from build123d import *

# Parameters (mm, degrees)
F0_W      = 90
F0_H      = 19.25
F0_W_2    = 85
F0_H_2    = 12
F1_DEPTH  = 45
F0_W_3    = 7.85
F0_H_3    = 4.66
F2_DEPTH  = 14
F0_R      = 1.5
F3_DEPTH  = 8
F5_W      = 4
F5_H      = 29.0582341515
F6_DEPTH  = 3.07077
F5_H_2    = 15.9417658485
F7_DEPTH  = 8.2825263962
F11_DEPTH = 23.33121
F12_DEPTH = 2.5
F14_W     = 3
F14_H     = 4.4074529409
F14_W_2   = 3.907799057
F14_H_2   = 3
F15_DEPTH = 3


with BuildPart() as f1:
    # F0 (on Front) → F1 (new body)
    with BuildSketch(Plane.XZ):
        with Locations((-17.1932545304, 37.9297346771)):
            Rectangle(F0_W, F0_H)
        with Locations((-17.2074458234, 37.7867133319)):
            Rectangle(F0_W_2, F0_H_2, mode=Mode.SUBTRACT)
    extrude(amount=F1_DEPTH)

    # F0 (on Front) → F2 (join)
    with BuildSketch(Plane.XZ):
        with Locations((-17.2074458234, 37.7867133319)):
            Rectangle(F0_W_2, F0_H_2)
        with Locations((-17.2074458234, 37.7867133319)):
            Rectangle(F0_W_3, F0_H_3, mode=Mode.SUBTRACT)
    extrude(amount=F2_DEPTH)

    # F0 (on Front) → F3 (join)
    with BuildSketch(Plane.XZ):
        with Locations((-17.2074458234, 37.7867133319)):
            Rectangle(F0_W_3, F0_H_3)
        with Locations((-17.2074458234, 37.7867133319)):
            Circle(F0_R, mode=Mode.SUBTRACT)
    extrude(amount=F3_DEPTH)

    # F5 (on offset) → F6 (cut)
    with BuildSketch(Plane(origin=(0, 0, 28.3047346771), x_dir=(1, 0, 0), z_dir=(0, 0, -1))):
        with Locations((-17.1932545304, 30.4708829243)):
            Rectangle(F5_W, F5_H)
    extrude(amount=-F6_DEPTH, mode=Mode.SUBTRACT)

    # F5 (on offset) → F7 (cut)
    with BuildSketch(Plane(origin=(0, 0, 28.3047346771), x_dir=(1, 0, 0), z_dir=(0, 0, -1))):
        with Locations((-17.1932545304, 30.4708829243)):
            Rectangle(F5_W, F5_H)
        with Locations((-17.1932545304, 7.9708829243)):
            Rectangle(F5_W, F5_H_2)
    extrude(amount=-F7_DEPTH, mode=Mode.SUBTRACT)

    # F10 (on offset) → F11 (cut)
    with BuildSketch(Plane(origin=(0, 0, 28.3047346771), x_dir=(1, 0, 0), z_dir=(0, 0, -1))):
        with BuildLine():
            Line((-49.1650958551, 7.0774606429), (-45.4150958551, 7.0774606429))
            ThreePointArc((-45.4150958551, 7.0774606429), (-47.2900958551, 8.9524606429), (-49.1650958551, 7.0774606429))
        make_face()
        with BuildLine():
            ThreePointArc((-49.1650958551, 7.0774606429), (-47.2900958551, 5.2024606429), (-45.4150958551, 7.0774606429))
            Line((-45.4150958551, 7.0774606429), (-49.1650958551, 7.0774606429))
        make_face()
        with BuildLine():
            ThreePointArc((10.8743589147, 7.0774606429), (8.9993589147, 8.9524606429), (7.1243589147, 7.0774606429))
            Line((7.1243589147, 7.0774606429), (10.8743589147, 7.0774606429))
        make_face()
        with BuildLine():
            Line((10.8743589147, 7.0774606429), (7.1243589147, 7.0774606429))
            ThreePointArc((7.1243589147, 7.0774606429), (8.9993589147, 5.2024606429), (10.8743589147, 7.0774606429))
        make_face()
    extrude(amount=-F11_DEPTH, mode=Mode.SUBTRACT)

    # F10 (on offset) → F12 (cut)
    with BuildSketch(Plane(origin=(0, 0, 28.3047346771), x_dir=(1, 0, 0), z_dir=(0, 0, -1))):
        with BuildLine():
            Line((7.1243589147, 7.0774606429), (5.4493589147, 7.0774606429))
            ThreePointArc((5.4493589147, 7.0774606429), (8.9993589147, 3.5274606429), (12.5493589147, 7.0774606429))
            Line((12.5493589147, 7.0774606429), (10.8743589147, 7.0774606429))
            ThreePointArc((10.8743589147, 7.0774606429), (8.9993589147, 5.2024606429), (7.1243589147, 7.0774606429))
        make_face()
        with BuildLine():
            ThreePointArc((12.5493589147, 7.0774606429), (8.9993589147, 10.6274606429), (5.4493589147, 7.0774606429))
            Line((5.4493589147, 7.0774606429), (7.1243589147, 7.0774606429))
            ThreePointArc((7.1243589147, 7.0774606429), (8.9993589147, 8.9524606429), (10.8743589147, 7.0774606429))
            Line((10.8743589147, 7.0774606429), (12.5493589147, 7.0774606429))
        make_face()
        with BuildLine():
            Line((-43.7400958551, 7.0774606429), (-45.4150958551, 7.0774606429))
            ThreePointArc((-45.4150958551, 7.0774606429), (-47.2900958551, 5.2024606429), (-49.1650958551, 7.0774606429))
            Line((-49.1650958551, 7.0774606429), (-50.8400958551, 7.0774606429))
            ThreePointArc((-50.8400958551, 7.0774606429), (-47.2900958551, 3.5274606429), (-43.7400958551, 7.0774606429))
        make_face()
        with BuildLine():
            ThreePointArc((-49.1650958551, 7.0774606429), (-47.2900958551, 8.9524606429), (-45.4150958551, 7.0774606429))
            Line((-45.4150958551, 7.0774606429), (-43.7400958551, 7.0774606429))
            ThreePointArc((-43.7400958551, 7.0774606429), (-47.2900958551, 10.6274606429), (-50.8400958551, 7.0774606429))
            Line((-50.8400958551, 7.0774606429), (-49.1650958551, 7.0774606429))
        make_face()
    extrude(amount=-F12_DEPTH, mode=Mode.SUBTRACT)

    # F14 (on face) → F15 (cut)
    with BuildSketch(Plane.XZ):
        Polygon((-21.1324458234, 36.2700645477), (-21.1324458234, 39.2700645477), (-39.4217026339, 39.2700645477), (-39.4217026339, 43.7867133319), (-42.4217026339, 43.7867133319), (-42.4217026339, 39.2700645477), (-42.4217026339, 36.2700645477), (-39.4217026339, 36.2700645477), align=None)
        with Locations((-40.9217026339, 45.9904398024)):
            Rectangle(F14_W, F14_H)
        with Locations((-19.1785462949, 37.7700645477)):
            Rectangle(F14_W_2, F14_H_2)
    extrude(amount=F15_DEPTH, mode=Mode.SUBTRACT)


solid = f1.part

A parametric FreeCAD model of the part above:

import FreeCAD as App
import Part
import Sketcher

V = App.Vector
Q = App.Units.Quantity

doc = App.newDocument("Part")
body = doc.addObject("PartDesign::Body", "Body")

sketch1 = body.newObject("Sketcher::SketchObject", "Sketch")
sketch1.AttachmentSupport = (doc.getObject("XZ_Plane"), [""])
sketch1.MapMode = "FlatFace"
sketch1.addGeometry([
    Part.LineSegment(V(-62, 48, 0), V(-62, 28, 0)),
    Part.LineSegment(V(-62, 28, 0), V(28, 28, 0)),
    Part.LineSegment(V(28, 28, 0), V(28, 48, 0)),
    Part.LineSegment(V(28, 48, 0), V(-62, 48, 0)),
    Part.LineSegment(V(25, 32, 0), V(-60, 32, 0)),
    Part.LineSegment(V(-60, 32, 0), V(-60, 44, 0)),
    Part.LineSegment(V(-60, 44, 0), V(25, 44, 0)),
    Part.LineSegment(V(25, 44, 0), V(25, 32, 0)),
], False)
sketch1.addConstraint([
    Sketcher.Constraint("Coincident", 0, 2, 1, 1),
    Sketcher.Constraint("Coincident", 1, 2, 2, 1),
    Sketcher.Constraint("Coincident", 2, 2, 3, 1),
    Sketcher.Constraint("Coincident", 3, 2, 0, 1),
    Sketcher.Constraint("Coincident", 4, 2, 5, 1),
    Sketcher.Constraint("Coincident", 5, 2, 6, 1),
    Sketcher.Constraint("Coincident", 6, 2, 7, 1),
    Sketcher.Constraint("Coincident", 7, 2, 4, 1),
    Sketcher.Constraint("Vertical", 0),
    Sketcher.Constraint("Horizontal", 1),
    Sketcher.Constraint("Vertical", 2),
    Sketcher.Constraint("Horizontal", 3),
    Sketcher.Constraint("Horizontal", 4),
    Sketcher.Constraint("Vertical", 5),
    Sketcher.Constraint("Horizontal", 6),
    Sketcher.Constraint("Vertical", 7),
    Sketcher.Constraint("DistanceX", 1, 1, 1, 2, Q("90 mm")),
    Sketcher.Constraint("DistanceX", 4, 2, 4, 1, Q("85 mm")),
    Sketcher.Constraint("DistanceY", 5, 1, 5, 2, Q("12 mm")),
    Sketcher.Constraint("DistanceY", 0, 2, 0, 1, Q("19.25 mm")),
    Sketcher.Constraint("DistanceX", 0, 2, 4, 2, Q("2.485809 mm")),
    Sketcher.Constraint("DistanceY", 0, 2, 4, 2, Q("3.481979 mm")),
    Sketcher.Constraint("DistanceX", 0, 2, -1, 1, Q("62.193255 mm")),
    Sketcher.Constraint("DistanceY", -1, 1, 0, 2, Q("28.304735 mm")),
])
pad1 = body.newObject("PartDesign::Pad", "Pad")
pad1.Profile = sketch1
pad1.Length = 45

sketch2 = body.newObject("Sketcher::SketchObject", "Sketch001")
sketch2.AttachmentSupport = (doc.getObject("XZ_Plane"), [""])
sketch2.MapMode = "FlatFace"
sketch2.addGeometry([
    Part.LineSegment(V(-59.7, 43.8, 0), V(-59.7, 31.8, 0)),
    Part.LineSegment(V(-59.7, 31.8, 0), V(25.3, 31.8, 0)),
    Part.LineSegment(V(25.3, 31.8, 0), V(25.3, 43.8, 0)),
    Part.LineSegment(V(25.3, 43.8, 0), V(-59.7, 43.8, 0)),
    Part.LineSegment(V(-13.3, 35.5, 0), V(-21.1, 35.5, 0)),
    Part.LineSegment(V(-21.1, 35.5, 0), V(-21.1, 40.1, 0)),
    Part.LineSegment(V(-21.1, 40.1, 0), V(-13.3, 40.1, 0)),
    Part.LineSegment(V(-13.3, 40.1, 0), V(-13.3, 35.5, 0)),
], False)
sketch2.addConstraint([
    Sketcher.Constraint("Coincident", 0, 2, 1, 1),
    Sketcher.Constraint("Coincident", 1, 2, 2, 1),
    Sketcher.Constraint("Coincident", 2, 2, 3, 1),
    Sketcher.Constraint("Coincident", 3, 2, 0, 1),
    Sketcher.Constraint("Coincident", 4, 2, 5, 1),
    Sketcher.Constraint("Coincident", 5, 2, 6, 1),
    Sketcher.Constraint("Coincident", 6, 2, 7, 1),
    Sketcher.Constraint("Coincident", 7, 2, 4, 1),
    Sketcher.Constraint("Vertical", 0),
    Sketcher.Constraint("Horizontal", 1),
    Sketcher.Constraint("Vertical", 2),
    Sketcher.Constraint("Horizontal", 3),
    Sketcher.Constraint("Horizontal", 4),
    Sketcher.Constraint("Vertical", 5),
    Sketcher.Constraint("Horizontal", 6),
    Sketcher.Constraint("Vertical", 7),
    Sketcher.Constraint("DistanceX", 1, 1, 1, 2, Q("85 mm")),
    Sketcher.Constraint("DistanceY", 0, 2, 0, 1, Q("12 mm")),
    Sketcher.Constraint("DistanceX", 4, 2, 4, 1, Q("7.85 mm")),
    Sketcher.Constraint("DistanceY", 5, 1, 5, 2, Q("4.66 mm")),
    Sketcher.Constraint("DistanceY", 0, 2, 4, 2, Q("3.67 mm")),
    Sketcher.Constraint("DistanceX", 0, 2, 4, 2, Q("38.575 mm")),
    Sketcher.Constraint("DistanceX", 0, 2, -1, 1, Q("59.707446 mm")),
    Sketcher.Constraint("DistanceY", -1, 1, 0, 2, Q("31.786713 mm")),
])
pad2 = body.newObject("PartDesign::Pad", "Pad001")
pad2.Profile = sketch2
pad2.Length = 14

sketch3 = body.newObject("Sketcher::SketchObject", "Sketch002")
sketch3.AttachmentSupport = (doc.getObject("XZ_Plane"), [""])
sketch3.MapMode = "FlatFace"
sketch3.addGeometry([
    Part.LineSegment(V(-21.1, 40.1, 0), V(-21.1, 35.5, 0)),
    Part.LineSegment(V(-21.1, 35.5, 0), V(-13.3, 35.5, 0)),
    Part.LineSegment(V(-13.3, 35.5, 0), V(-13.3, 40.1, 0)),
    Part.LineSegment(V(-13.3, 40.1, 0), V(-21.1, 40.1, 0)),
    Part.Circle(V(-17.2, 37.8, 0), V(0, 0, 1), 1.5),
], False)
sketch3.addConstraint([
    Sketcher.Constraint("Coincident", 0, 2, 1, 1),
    Sketcher.Constraint("Coincident", 1, 2, 2, 1),
    Sketcher.Constraint("Coincident", 2, 2, 3, 1),
    Sketcher.Constraint("Coincident", 3, 2, 0, 1),
    Sketcher.Constraint("Vertical", 0),
    Sketcher.Constraint("Horizontal", 1),
    Sketcher.Constraint("Vertical", 2),
    Sketcher.Constraint("Horizontal", 3),
    Sketcher.Constraint("Diameter", 4, Q("3 mm")),
    Sketcher.Constraint("DistanceX", 1, 1, 1, 2, Q("7.85 mm")),
    Sketcher.Constraint("DistanceY", 0, 2, 0, 1, Q("4.66 mm")),
    Sketcher.Constraint("DistanceY", 0, 2, 4, 3, Q("2.33 mm")),
    Sketcher.Constraint("DistanceX", 0, 2, 4, 3, Q("3.925 mm")),
    Sketcher.Constraint("DistanceX", 4, 3, -1, 1, Q("17.207446 mm")),
    Sketcher.Constraint("DistanceY", -1, 1, 4, 3, Q("37.786713 mm")),
])
pad3 = body.newObject("PartDesign::Pad", "Pad002")
pad3.Profile = sketch3
pad3.Length = 8

sketch4 = body.newObject("Sketcher::SketchObject", "Sketch003")
sketch4.AttachmentSupport = (doc.getObject("XY_Plane"), [""])
sketch4.MapMode = "FlatFace"
sketch4.AttachmentOffset = App.Placement(V(0, 0, 28.304735), App.Rotation())
sketch4.addGeometry([
    Part.LineSegment(V(-19.2, -45, 0), V(-19.2, -15.9, 0)),
    Part.LineSegment(V(-19.2, -15.9, 0), V(-15.2, -15.9, 0)),
    Part.LineSegment(V(-15.2, -15.9, 0), V(-15.2, -45, 0)),
    Part.LineSegment(V(-15.2, -45, 0), V(-19.2, -45, 0)),
], False)
sketch4.addConstraint([
    Sketcher.Constraint("Coincident", 0, 2, 1, 1),
    Sketcher.Constraint("Coincident", 1, 2, 2, 1),
    Sketcher.Constraint("Coincident", 2, 2, 3, 1),
    Sketcher.Constraint("Coincident", 3, 2, 0, 1),
    Sketcher.Constraint("Vertical", 0),
    Sketcher.Constraint("Horizontal", 1),
    Sketcher.Constraint("Vertical", 2),
    Sketcher.Constraint("Horizontal", 3),
    Sketcher.Constraint("DistanceX", 1, 1, 1, 2, Q("4 mm")),
    Sketcher.Constraint("DistanceY", 2, 2, -1, 1, Q("45 mm")),
    Sketcher.Constraint("DistanceY", 0, 1, 0, 2, Q("29.058234 mm")),
    Sketcher.Constraint("DistanceX", 0, 2, -1, 1, Q("19.193255 mm")),
])
pocket1 = body.newObject("PartDesign::Pocket", "Pocket")
pocket1.Profile = sketch4
pocket1.Length = 3.07077
pocket1.Reversed = True

sketch5 = body.newObject("Sketcher::SketchObject", "Sketch004")
sketch5.AttachmentSupport = (doc.getObject("XY_Plane"), [""])
sketch5.MapMode = "FlatFace"
sketch5.AttachmentOffset = App.Placement(V(0, 0, 28.304735), App.Rotation())
sketch5.addGeometry([
    Part.LineSegment(V(-19.2, -45, 0), V(-19.2, 0, 0)),
    Part.LineSegment(V(-19.2, 0, 0), V(-15.2, 0, 0)),
    Part.LineSegment(V(-15.2, 0, 0), V(-15.2, -45, 0)),
    Part.LineSegment(V(-15.2, -45, 0), V(-19.2, -45, 0)),
], False)
sketch5.addConstraint([
    Sketcher.Constraint("Coincident", 0, 2, 1, 1),
    Sketcher.Constraint("Coincident", 1, 2, 2, 1),
    Sketcher.Constraint("Coincident", 2, 2, 3, 1),
    Sketcher.Constraint("Coincident", 3, 2, 0, 1),
    Sketcher.Constraint("Vertical", 0),
    Sketcher.Constraint("Horizontal", 1),
    Sketcher.Constraint("Vertical", 2),
    Sketcher.Constraint("Horizontal", 3),
    Sketcher.Constraint("PointOnObject", 0, 2, -1),
    Sketcher.Constraint("DistanceX", 1, 1, 1, 2, Q("4 mm")),
    Sketcher.Constraint("DistanceY", 0, 1, 0, 2, Q("45 mm")),
    Sketcher.Constraint("DistanceX", 0, 2, -1, 1, Q("19.193255 mm")),
])
pocket2 = body.newObject("PartDesign::Pocket", "Pocket001")
pocket2.Profile = sketch5
pocket2.Length = 8.282526
pocket2.Reversed = True

sketch6 = body.newObject("Sketcher::SketchObject", "Sketch005")
sketch6.AttachmentSupport = (doc.getObject("XY_Plane"), [""])
sketch6.MapMode = "FlatFace"
sketch6.AttachmentOffset = App.Placement(V(0, 0, 28.304735), App.Rotation())
sketch6.addGeometry([
    Part.Circle(V(-47.3, -7.1, 0), V(0, 0, 1), 1.9),
    Part.Circle(V(9, -7.1, 0), V(0, 0, 1), 1.9),
], False)
sketch6.addConstraint([
    Sketcher.Constraint("Equal", 0, 1),
    Sketcher.Constraint("Horizontal", 0, 3, 1, 3),
    Sketcher.Constraint("Diameter", 0, Q("3.75 mm")),
    Sketcher.Constraint("DistanceY", 0, 3, -1, 1, Q("7.077461 mm")),
    Sketcher.Constraint("DistanceX", -1, 1, 1, 3, Q("8.999359 mm")),
    Sketcher.Constraint("DistanceX", 0, 3, -1, 1, Q("47.290096 mm")),
])
pocket3 = body.newObject("PartDesign::Pocket", "Pocket002")
pocket3.Profile = sketch6
pocket3.Length = 23.33121
pocket3.Reversed = True

sketch7 = body.newObject("Sketcher::SketchObject", "Sketch006")
sketch7.AttachmentSupport = (doc.getObject("XY_Plane"), [""])
sketch7.MapMode = "FlatFace"
sketch7.AttachmentOffset = App.Placement(V(0, 0, 28.304735), App.Rotation())
sketch7.addGeometry([
    Part.Circle(V(9, -7.1, 0), V(0, 0, 1), 3.5),
    Part.Circle(V(9, -7.1, 0), V(0, 0, 1), 1.9),
    Part.Circle(V(-47.3, -7.1, 0), V(0, 0, 1), 3.5),
    Part.Circle(V(-47.3, -7.1, 0), V(0, 0, 1), 1.9),
], False)
sketch7.addConstraint([
    Sketcher.Constraint("Coincident", 1, 3, 0, 3),
    Sketcher.Constraint("Coincident", 3, 3, 2, 3),
    Sketcher.Constraint("Equal", 0, 2),
    Sketcher.Constraint("Equal", 1, 3),
    Sketcher.Constraint("Horizontal", 1, 3, 2, 3),
    Sketcher.Constraint("Diameter", 0, Q("7.1 mm")),
    Sketcher.Constraint("Diameter", 1, Q("3.75 mm")),
    Sketcher.Constraint("DistanceX", -1, 1, 0, 3, Q("8.999359 mm")),
    Sketcher.Constraint("DistanceY", 0, 3, -1, 1, Q("7.077461 mm")),
    Sketcher.Constraint("DistanceX", 2, 3, -1, 1, Q("47.290096 mm")),
])
pocket4 = body.newObject("PartDesign::Pocket", "Pocket003")
pocket4.Profile = sketch7
pocket4.Length = 2.5
pocket4.Reversed = True

sketch8 = body.newObject("Sketcher::SketchObject", "Sketch007")
sketch8.AttachmentSupport = (doc.getObject("XZ_Plane"), [""])
sketch8.MapMode = "FlatFace"
sketch8.addGeometry([
    Part.LineSegment(V(-39.4, 39.3, 0), V(-39.4, 48.2, 0)),
    Part.LineSegment(V(-39.4, 48.2, 0), V(-42.4, 48.2, 0)),
    Part.LineSegment(V(-42.4, 48.2, 0), V(-42.4, 36.3, 0)),
    Part.LineSegment(V(-42.4, 36.3, 0), V(-17.2, 36.3, 0)),
    Part.LineSegment(V(-17.2, 36.3, 0), V(-17.2, 39.3, 0)),
    Part.LineSegment(V(-17.2, 39.3, 0), V(-39.4, 39.3, 0)),
], False)
sketch8.addConstraint([
    Sketcher.Constraint("Coincident", 0, 2, 1, 1),
    Sketcher.Constraint("Coincident", 1, 2, 2, 1),
    Sketcher.Constraint("Coincident", 2, 2, 3, 1),
    Sketcher.Constraint("Coincident", 3, 2, 4, 1),
    Sketcher.Constraint("Coincident", 4, 2, 5, 1),
    Sketcher.Constraint("Coincident", 5, 2, 0, 1),
    Sketcher.Constraint("Vertical", 0),
    Sketcher.Constraint("Horizontal", 1),
    Sketcher.Constraint("Vertical", 2),
    Sketcher.Constraint("Horizontal", 3),
    Sketcher.Constraint("Vertical", 4),
    Sketcher.Constraint("Horizontal", 5),
    Sketcher.Constraint("Equal", 1, 4),
    Sketcher.Constraint("DistanceX", 1, 2, 1, 1, Q("3 mm")),
    Sketcher.Constraint("DistanceY", 0, 1, 0, 2, Q("8.924102 mm")),
    Sketcher.Constraint("DistanceX", 3, 1, 3, 2, Q("25.197056 mm")),
    Sketcher.Constraint("DistanceX", 0, 2, -1, 1, Q("39.421703 mm")),
    Sketcher.Constraint("DistanceY", -1, 1, 0, 2, Q("48.194166 mm")),
])
pocket5 = body.newObject("PartDesign::Pocket", "Pocket004")
pocket5.Profile = sketch8
pocket5.Length = 3
pocket5.Reversed = True

doc.recompute()
